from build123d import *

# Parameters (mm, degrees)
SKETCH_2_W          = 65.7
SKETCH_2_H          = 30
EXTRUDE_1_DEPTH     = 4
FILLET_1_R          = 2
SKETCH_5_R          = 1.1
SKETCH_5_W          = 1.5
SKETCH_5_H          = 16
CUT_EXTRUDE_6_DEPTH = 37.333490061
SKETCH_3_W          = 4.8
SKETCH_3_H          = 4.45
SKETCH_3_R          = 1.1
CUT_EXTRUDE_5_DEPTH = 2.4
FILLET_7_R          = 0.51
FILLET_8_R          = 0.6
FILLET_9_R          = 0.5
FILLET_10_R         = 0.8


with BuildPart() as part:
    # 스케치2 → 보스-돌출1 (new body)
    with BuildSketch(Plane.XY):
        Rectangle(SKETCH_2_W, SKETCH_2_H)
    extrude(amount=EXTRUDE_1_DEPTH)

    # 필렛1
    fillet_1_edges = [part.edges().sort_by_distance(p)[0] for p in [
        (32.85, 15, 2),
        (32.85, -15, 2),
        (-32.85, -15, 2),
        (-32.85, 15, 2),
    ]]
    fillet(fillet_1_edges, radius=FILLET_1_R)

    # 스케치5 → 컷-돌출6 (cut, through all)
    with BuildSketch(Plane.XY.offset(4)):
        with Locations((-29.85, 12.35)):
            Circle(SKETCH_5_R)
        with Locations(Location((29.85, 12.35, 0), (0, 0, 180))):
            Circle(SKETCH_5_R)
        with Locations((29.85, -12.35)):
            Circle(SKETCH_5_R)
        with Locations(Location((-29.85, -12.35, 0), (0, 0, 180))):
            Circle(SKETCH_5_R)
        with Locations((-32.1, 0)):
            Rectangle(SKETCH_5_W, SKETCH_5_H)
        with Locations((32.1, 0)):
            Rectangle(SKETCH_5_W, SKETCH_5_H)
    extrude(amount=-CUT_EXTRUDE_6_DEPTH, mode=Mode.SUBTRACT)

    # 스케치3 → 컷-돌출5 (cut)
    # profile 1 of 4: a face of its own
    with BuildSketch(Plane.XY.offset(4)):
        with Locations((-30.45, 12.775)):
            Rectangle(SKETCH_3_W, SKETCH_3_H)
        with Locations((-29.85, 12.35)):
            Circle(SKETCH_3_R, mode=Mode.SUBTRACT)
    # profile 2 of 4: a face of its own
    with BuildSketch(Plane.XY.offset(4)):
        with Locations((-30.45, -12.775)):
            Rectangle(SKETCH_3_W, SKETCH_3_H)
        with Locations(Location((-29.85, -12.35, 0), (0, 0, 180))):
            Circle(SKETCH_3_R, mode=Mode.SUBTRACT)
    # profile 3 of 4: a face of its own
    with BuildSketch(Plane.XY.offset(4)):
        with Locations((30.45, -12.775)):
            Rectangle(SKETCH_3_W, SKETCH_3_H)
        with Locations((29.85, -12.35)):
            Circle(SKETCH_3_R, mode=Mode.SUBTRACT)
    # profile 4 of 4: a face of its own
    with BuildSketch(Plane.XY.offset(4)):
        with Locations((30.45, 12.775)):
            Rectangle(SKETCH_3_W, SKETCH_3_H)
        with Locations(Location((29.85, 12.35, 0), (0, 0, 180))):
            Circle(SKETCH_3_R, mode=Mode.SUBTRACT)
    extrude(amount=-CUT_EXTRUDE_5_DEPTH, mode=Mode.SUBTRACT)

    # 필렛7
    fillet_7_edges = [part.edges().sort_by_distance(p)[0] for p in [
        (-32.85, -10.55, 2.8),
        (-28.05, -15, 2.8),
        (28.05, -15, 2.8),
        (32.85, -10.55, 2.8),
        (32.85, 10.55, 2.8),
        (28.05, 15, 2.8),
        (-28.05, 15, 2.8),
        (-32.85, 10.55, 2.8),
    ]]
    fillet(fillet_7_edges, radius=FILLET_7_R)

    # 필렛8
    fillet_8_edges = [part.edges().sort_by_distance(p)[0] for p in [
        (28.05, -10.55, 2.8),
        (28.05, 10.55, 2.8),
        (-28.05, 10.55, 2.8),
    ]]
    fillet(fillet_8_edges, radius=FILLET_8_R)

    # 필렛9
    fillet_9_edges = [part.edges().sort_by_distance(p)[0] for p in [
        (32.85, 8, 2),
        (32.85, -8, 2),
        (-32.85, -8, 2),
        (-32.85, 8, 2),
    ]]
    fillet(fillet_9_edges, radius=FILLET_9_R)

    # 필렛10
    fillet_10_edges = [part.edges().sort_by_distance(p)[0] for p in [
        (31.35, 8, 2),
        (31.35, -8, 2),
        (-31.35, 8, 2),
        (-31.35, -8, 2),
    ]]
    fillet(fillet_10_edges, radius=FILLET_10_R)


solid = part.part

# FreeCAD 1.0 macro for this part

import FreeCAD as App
import Part
import Sketcher
from FreeCAD import Vector


def edges_at(feature, points):
    """Names of the edges that pass closest to the given points."""
    edges = feature.Shape.Edges
    near = lambda p: min(range(len(edges)), key=lambda i: edges[i].distToShape(Part.Vertex(*p))[0])
    return sorted({f"Edge{near(p) + 1}" for p in points})

doc = App.newDocument("Part")
params = doc.addObject("Spreadsheet::Sheet", "Params")
for row, (alias, value) in enumerate([
    ("sketch1_height", "30 mm"),
    ("sketch1_width", "65.7 mm"),
    ("pad1_length", "4 mm"),
    ("fillet_radius", "2 mm"),
    ("sketch2_diameter", "2.2 mm"),
    ("sketch2_height", "16 mm"),
    ("sketch2_width", "1.5 mm"),
    ("sketch3_diameter", "2.2 mm"),
    ("sketch3_width", "4.8 mm"),
    ("sketch3_height", "4.45 mm"),
    ("pocket2_length", "2.4 mm"),
    ("fillet2_radius", "0.51 mm"),
    ("fillet3_radius", "0.6 mm"),
    ("fillet4_radius", "0.5 mm"),
    ("fillet5_radius", "0.8 mm"),
], start=1):
    params.set(f"A{row}", alias)
    params.set(f"B{row}", "=" + value)
    params.setAlias(f"B{row}", alias)

body = doc.addObject("PartDesign::Body", "Body")

# Sketch on XY plane
sketch1 = body.newObject("Sketcher::SketchObject", "Sketch")
sketch1.AttachmentSupport = (doc.getObject("XY_Plane"), [""])
sketch1.MapMode = "FlatFace"
sketch1.addGeometry([
    Part.LineSegment(Vector(-33, 15, 0), Vector(-33, -15, 0)),
    Part.LineSegment(Vector(-33, -15, 0), Vector(33, -15, 0)),
    Part.LineSegment(Vector(33, -15, 0), Vector(33, 15, 0)),
    Part.LineSegment(Vector(33, 15, 0), Vector(-33, 15, 0)),
], False)
sketch1.addConstraint([
    Sketcher.Constraint("Coincident", 0, 2, 1, 1),
    Sketcher.Constraint("Coincident", 1, 2, 2, 1),
    Sketcher.Constraint("Coincident", 2, 2, 3, 1),
    Sketcher.Constraint("Coincident", 3, 2, 0, 1),
    Sketcher.Constraint("Vertical", 0),
    Sketcher.Constraint("Horizontal", 1),
    Sketcher.Constraint("Vertical", 2),
    Sketcher.Constraint("Horizontal", 3),
    Sketcher.Constraint("Symmetric", 0, 2, 2, 2, -1, 1),
    Sketcher.Constraint("DistanceY", 0, 2, 0, 1, 30.0),
    Sketcher.Constraint("DistanceX", 1, 1, 1, 2, 65.7),
])
sketch1.setExpression("Constraints[9]", "Params.sketch1_height")
sketch1.setExpression("Constraints[10]", "Params.sketch1_width")
pad1 = body.newObject("PartDesign::Pad", "Pad")
pad1.Profile = sketch1
pad1.setExpression("Length", "Params.pad1_length")
doc.recompute()

fillet = body.newObject("PartDesign::Fillet", "Fillet")
fillet.Base = (pad1, edges_at(pad1, [
    (32.85, 15, 2),
    (32.85, -15, 2),
    (-32.85, -15, 2),
    (-32.85, 15, 2),
]))
fillet.setExpression("Radius", "Params.fillet_radius")

# Sketch on XY plane
sketch2 = body.newObject("Sketcher::SketchObject", "Sketch001")
sketch2.AttachmentSupport = (doc.getObject("XY_Plane"), [""])
sketch2.MapMode = "FlatFace"
sketch2.AttachmentOffset = App.Placement(Vector(0, 0, 4), App.Rotation())
sketch2.addGeometry([
    Part.Circle(Vector(-29.9, 12.3, 0), Vector(0, 0, 1), 1.1),  # 0
    Part.Circle(Vector(29.9, 12.3, 0), Vector(0, 0, 1), 1.1),  # 1
    Part.Circle(Vector(29.9, -12.3, 0), Vector(0, 0, 1), 1.1),  # 2
    Part.Circle(Vector(-29.9, -12.3, 0), Vector(0, 0, 1), 1.1),  # 3
    Part.LineSegment(Vector(-32.9, 8, 0), Vector(-32.9, -8, 0)),  # 4
    Part.LineSegment(Vector(-32.9, -8, 0), Vector(-31.4, -8, 0)),  # 5
    Part.LineSegment(Vector(-31.4, -8, 0), Vector(-31.4, 8, 0)),  # 6
    Part.LineSegment(Vector(-31.4, 8, 0), Vector(-32.9, 8, 0)),  # 7
    Part.LineSegment(Vector(31.4, 8, 0), Vector(31.4, -8, 0)),  # 8
    Part.LineSegment(Vector(31.4, -8, 0), Vector(32.9, -8, 0)),  # 9
    Part.LineSegment(Vector(32.9, -8, 0), Vector(32.9, 8, 0)),  # 10
    Part.LineSegment(Vector(32.9, 8, 0), Vector(31.4, 8, 0)),  # 11
], False)
sketch2.addConstraint([
    Sketcher.Constraint("Coincident", 4, 2, 5, 1),
    Sketcher.Constraint("Coincident", 5, 2, 6, 1),
    Sketcher.Constraint("Coincident", 6, 2, 7, 1),
    Sketcher.Constraint("Coincident", 7, 2, 4, 1),
    Sketcher.Constraint("Coincident", 8, 2, 9, 1),
    Sketcher.Constraint("Coincident", 9, 2, 10, 1),
    Sketcher.Constraint("Coincident", 10, 2, 11, 1),
    Sketcher.Constraint("Coincident", 11, 2, 8, 1),
    Sketcher.Constraint("Vertical", 4),
    Sketcher.Constraint("Horizontal", 5),
    Sketcher.Constraint("Vertical", 6),
    Sketcher.Constraint("Horizontal", 7),
    Sketcher.Constraint("Vertical", 8),
    Sketcher.Constraint("Horizontal", 9),
    Sketcher.Constraint("Vertical", 10),
    Sketcher.Constraint("Horizontal", 11),
    Sketcher.Constraint("Equal", 0, 1),
    Sketcher.Constraint("Equal", 1, 2),
    Sketcher.Constraint("Equal", 2, 3),
    Sketcher.Constraint("Symmetric", 0, 3, 2, 3, -1, 1),
    Sketcher.Constraint("Symmetric", 1, 3, 3, 3, -1, 1),
    Sketcher.Constraint("Symmetric", 6, 2, 8, 2, -1, 1),
    Sketcher.Constraint("Symmetric", 4, 2, 10, 2, -1, 1),
    Sketcher.Constraint("Symmetric", 0, 3, 1, 3, -2),
    Sketcher.Constraint("Horizontal", 5, 2, 8, 2),
    Sketcher.Constraint("Diameter", 0, 2.2),
    Sketcher.Constraint("DistanceY", 4, 2, 4, 1, 16.0),
    Sketcher.Constraint("DistanceX", 5, 1, 5, 2, 1.5),
    Sketcher.Constraint("DistanceX", 4, 2, 3, 3, 3.0),
    Sketcher.Constraint("DistanceX", 0, 3, 1, 3, 59.7),
    Sketcher.Constraint("DistanceY", 2, 3, 1, 3, 24.7),
])
sketch2.setExpression("Constraints[25]", "Params.sketch2_diameter")
sketch2.setExpression("Constraints[26]", "Params.sketch2_height")
sketch2.setExpression("Constraints[27]", "Params.sketch2_width")
pocket1 = body.newObject("PartDesign::Pocket", "Pocket")
pocket1.Profile = sketch2
pocket1.Type = "ThroughAll"

# Sketch on XY plane
sketch3 = body.newObject("Sketcher::SketchObject", "Sketch002")
sketch3.AttachmentSupport = (doc.getObject("XY_Plane"), [""])
sketch3.MapMode = "FlatFace"
sketch3.AttachmentOffset = App.Placement(Vector(0, 0, 4), App.Rotation())
sketch3.addGeometry([
    Part.LineSegment(Vector(-32.9, 15, 0), Vector(-32.9, 10.6, 0)),  # 0
    Part.LineSegment(Vector(-32.9, 10.6, 0), Vector(-28.1, 10.6, 0)),  # 1
    Part.LineSegment(Vector(-28.1, 10.6, 0), Vector(-28.1, 15, 0)),  # 2
    Part.LineSegment(Vector(-28.1, 15, 0), Vector(-32.9, 15, 0)),  # 3
    Part.Circle(Vector(-29.9, 12.3, 0), Vector(0, 0, 1), 1.1),  # 4
    Part.LineSegment(Vector(-32.9, -10.6, 0), Vector(-32.9, -15, 0)),  # 5
    Part.LineSegment(Vector(-32.9, -15, 0), Vector(-28.1, -15, 0)),  # 6
    Part.LineSegment(Vector(-28.1, -15, 0), Vector(-28.1, -10.6, 0)),  # 7
    Part.LineSegment(Vector(-28.1, -10.6, 0), Vector(-32.9, -10.6, 0)),  # 8
    Part.Circle(Vector(-29.9, -12.3, 0), Vector(0, 0, 1), 1.1),  # 9
    Part.LineSegment(Vector(28.1, -10.6, 0), Vector(28.1, -15, 0)),  # 10
    Part.LineSegment(Vector(28.1, -15, 0), Vector(32.9, -15, 0)),  # 11
    Part.LineSegment(Vector(32.9, -15, 0), Vector(32.9, -10.6, 0)),  # 12
    Part.LineSegment(Vector(32.9, -10.6, 0), Vector(28.1, -10.6, 0)),  # 13
    Part.Circle(Vector(29.9, -12.3, 0), Vector(0, 0, 1), 1.1),  # 14
    Part.LineSegment(Vector(28.1, 15, 0), Vector(28.1, 10.6, 0)),  # 15
    Part.LineSegment(Vector(28.1, 10.6, 0), Vector(32.9, 10.6, 0)),  # 16
    Part.LineSegment(Vector(32.9, 10.6, 0), Vector(32.9, 15, 0)),  # 17
    Part.LineSegment(Vector(32.9, 15, 0), Vector(28.1, 15, 0)),  # 18
    Part.Circle(Vector(29.9, 12.3, 0), Vector(0, 0, 1), 1.1),  # 19
], False)
sketch3.addConstraint([
    Sketcher.Constraint("Coincident", 0, 2, 1, 1),
    Sketcher.Constraint("Coincident", 1, 2, 2, 1),
    Sketcher.Constraint("Coincident", 2, 2, 3, 1),
    Sketcher.Constraint("Coincident", 3, 2, 0, 1),
    Sketcher.Constraint("Coincident", 5, 2, 6, 1),
    Sketcher.Constraint("Coincident", 6, 2, 7, 1),
    Sketcher.Constraint("Coincident", 7, 2, 8, 1),
    Sketcher.Constraint("Coincident", 8, 2, 5, 1),
    Sketcher.Constraint("Coincident", 10, 2, 11, 1),
    Sketcher.Constraint("Coincident", 11, 2, 12, 1),
    Sketcher.Constraint("Coincident", 12, 2, 13, 1),
    Sketcher.Constraint("Coincident", 13, 2, 10, 1),
    Sketcher.Constraint("Coincident", 15, 2, 16, 1),
    Sketcher.Constraint("Coincident", 16, 2, 17, 1),
    Sketcher.Constraint("Coincident", 17, 2, 18, 1),
    Sketcher.Constraint("Coincident", 18, 2, 15, 1),
    Sketcher.Constraint("Vertical", 0),
    Sketcher.Constraint("Horizontal", 1),
    Sketcher.Constraint("Vertical", 2),
    Sketcher.Constraint("Horizontal", 3),
    Sketcher.Constraint("Vertical", 5),
    Sketcher.Constraint("Horizontal", 6),
    Sketcher.Constraint("Vertical", 7),
    Sketcher.Constraint("Horizontal", 8),
    Sketcher.Constraint("Vertical", 10),
    Sketcher.Constraint("Horizontal", 11),
    Sketcher.Constraint("Vertical", 12),
    Sketcher.Constraint("Horizontal", 13),
    Sketcher.Constraint("Vertical", 15),
    Sketcher.Constraint("Horizontal", 16),
    Sketcher.Constraint("Vertical", 17),
    Sketcher.Constraint("Horizontal", 18),
    Sketcher.Constraint("Equal", 4, 9),
    Sketcher.Constraint("Equal", 9, 14),
    Sketcher.Constraint("Equal", 14, 19),
    Sketcher.Constraint("Symmetric", 4, 3, 14, 3, -1, 1),
    Sketcher.Constraint("Symmetric", 9, 3, 19, 3, -1, 1),
    Sketcher.Constraint("Symmetric", 2, 2, 10, 2, -1, 1),
    Sketcher.Constraint("Symmetric", 0, 2, 12, 2, -1, 1),
    Sketcher.Constraint("Symmetric", 7, 2, 15, 2, -1, 1),
    Sketcher.Constraint("Symmetric", 5, 2, 17, 2, -1, 1),
    Sketcher.Constraint("Symmetric", 9, 3, 14, 3, -2),
    Sketcher.Constraint("Symmetric", 6, 2, 10, 2, -2),
    Sketcher.Constraint("Symmetric", 8, 2, 12, 2, -2),
    Sketcher.Constraint("Diameter", 4, 2.2),
    Sketcher.Constraint("DistanceX", 1, 1, 1, 2, 4.8),
    Sketcher.Constraint("DistanceY", -1, 1, 2, 2, 15.0),
    Sketcher.Constraint("DistanceX", 0, 2, 4, 3, 3.0),
    Sketcher.Constraint("DistanceY", 0, 2, 0, 1, 4.45),
    Sketcher.Constraint("DistanceY", 9, 3, 4, 3, 24.7),
    Sketcher.Constraint("DistanceX", 9, 3, 14, 3, 59.7),
])
sketch3.setExpression("Constraints[44]", "Params.sketch3_diameter")
sketch3.setExpression("Constraints[45]", "Params.sketch3_width")
sketch3.setExpression("Constraints[48]", "Params.sketch3_height")
pocket2 = body.newObject("PartDesign::Pocket", "Pocket001")
pocket2.Profile = sketch3
pocket2.setExpression("Length", "Params.pocket2_length")
doc.recompute()

fillet2 = body.newObject("PartDesign::Fillet", "Fillet001")
fillet2.Base = (pocket2, edges_at(pocket2, [
    (-32.85, -10.55, 2.8),
    (-28.05, -15, 2.8),
    (28.05, -15, 2.8),
    (32.85, -10.55, 2.8),
    (32.85, 10.55, 2.8),
    (28.05, 15, 2.8),
    (-28.05, 15, 2.8),
    (-32.85, 10.55, 2.8),
]))
fillet2.setExpression("Radius", "Params.fillet2_radius")
doc.recompute()

fillet3 = body.newObject("PartDesign::Fillet", "Fillet002")
fillet3.Base = (fillet2, edges_at(fillet2, [(28.05, -10.55, 2.8), (28.05, 10.55, 2.8), (-28.05, 10.55, 2.8)]))
fillet3.setExpression("Radius", "Params.fillet3_radius")
doc.recompute()

fillet4 = body.newObject("PartDesign::Fillet", "Fillet003")
fillet4.Base = (fillet3, edges_at(fillet3, [
    (32.85, 8, 2),
    (32.85, -8, 2),
    (-32.85, -8, 2),
    (-32.85, 8, 2),
]))
fillet4.setExpression("Radius", "Params.fillet4_radius")
doc.recompute()

fillet5 = body.newObject("PartDesign::Fillet", "Fillet004")
fillet5.Base = (fillet4, edges_at(fillet4, [
    (31.35, 8, 2),
    (31.35, -8, 2),
    (-31.35, 8, 2),
    (-31.35, -8, 2),
]))
fillet5.setExpression("Radius", "Params.fillet5_radius")

doc.recompute()
